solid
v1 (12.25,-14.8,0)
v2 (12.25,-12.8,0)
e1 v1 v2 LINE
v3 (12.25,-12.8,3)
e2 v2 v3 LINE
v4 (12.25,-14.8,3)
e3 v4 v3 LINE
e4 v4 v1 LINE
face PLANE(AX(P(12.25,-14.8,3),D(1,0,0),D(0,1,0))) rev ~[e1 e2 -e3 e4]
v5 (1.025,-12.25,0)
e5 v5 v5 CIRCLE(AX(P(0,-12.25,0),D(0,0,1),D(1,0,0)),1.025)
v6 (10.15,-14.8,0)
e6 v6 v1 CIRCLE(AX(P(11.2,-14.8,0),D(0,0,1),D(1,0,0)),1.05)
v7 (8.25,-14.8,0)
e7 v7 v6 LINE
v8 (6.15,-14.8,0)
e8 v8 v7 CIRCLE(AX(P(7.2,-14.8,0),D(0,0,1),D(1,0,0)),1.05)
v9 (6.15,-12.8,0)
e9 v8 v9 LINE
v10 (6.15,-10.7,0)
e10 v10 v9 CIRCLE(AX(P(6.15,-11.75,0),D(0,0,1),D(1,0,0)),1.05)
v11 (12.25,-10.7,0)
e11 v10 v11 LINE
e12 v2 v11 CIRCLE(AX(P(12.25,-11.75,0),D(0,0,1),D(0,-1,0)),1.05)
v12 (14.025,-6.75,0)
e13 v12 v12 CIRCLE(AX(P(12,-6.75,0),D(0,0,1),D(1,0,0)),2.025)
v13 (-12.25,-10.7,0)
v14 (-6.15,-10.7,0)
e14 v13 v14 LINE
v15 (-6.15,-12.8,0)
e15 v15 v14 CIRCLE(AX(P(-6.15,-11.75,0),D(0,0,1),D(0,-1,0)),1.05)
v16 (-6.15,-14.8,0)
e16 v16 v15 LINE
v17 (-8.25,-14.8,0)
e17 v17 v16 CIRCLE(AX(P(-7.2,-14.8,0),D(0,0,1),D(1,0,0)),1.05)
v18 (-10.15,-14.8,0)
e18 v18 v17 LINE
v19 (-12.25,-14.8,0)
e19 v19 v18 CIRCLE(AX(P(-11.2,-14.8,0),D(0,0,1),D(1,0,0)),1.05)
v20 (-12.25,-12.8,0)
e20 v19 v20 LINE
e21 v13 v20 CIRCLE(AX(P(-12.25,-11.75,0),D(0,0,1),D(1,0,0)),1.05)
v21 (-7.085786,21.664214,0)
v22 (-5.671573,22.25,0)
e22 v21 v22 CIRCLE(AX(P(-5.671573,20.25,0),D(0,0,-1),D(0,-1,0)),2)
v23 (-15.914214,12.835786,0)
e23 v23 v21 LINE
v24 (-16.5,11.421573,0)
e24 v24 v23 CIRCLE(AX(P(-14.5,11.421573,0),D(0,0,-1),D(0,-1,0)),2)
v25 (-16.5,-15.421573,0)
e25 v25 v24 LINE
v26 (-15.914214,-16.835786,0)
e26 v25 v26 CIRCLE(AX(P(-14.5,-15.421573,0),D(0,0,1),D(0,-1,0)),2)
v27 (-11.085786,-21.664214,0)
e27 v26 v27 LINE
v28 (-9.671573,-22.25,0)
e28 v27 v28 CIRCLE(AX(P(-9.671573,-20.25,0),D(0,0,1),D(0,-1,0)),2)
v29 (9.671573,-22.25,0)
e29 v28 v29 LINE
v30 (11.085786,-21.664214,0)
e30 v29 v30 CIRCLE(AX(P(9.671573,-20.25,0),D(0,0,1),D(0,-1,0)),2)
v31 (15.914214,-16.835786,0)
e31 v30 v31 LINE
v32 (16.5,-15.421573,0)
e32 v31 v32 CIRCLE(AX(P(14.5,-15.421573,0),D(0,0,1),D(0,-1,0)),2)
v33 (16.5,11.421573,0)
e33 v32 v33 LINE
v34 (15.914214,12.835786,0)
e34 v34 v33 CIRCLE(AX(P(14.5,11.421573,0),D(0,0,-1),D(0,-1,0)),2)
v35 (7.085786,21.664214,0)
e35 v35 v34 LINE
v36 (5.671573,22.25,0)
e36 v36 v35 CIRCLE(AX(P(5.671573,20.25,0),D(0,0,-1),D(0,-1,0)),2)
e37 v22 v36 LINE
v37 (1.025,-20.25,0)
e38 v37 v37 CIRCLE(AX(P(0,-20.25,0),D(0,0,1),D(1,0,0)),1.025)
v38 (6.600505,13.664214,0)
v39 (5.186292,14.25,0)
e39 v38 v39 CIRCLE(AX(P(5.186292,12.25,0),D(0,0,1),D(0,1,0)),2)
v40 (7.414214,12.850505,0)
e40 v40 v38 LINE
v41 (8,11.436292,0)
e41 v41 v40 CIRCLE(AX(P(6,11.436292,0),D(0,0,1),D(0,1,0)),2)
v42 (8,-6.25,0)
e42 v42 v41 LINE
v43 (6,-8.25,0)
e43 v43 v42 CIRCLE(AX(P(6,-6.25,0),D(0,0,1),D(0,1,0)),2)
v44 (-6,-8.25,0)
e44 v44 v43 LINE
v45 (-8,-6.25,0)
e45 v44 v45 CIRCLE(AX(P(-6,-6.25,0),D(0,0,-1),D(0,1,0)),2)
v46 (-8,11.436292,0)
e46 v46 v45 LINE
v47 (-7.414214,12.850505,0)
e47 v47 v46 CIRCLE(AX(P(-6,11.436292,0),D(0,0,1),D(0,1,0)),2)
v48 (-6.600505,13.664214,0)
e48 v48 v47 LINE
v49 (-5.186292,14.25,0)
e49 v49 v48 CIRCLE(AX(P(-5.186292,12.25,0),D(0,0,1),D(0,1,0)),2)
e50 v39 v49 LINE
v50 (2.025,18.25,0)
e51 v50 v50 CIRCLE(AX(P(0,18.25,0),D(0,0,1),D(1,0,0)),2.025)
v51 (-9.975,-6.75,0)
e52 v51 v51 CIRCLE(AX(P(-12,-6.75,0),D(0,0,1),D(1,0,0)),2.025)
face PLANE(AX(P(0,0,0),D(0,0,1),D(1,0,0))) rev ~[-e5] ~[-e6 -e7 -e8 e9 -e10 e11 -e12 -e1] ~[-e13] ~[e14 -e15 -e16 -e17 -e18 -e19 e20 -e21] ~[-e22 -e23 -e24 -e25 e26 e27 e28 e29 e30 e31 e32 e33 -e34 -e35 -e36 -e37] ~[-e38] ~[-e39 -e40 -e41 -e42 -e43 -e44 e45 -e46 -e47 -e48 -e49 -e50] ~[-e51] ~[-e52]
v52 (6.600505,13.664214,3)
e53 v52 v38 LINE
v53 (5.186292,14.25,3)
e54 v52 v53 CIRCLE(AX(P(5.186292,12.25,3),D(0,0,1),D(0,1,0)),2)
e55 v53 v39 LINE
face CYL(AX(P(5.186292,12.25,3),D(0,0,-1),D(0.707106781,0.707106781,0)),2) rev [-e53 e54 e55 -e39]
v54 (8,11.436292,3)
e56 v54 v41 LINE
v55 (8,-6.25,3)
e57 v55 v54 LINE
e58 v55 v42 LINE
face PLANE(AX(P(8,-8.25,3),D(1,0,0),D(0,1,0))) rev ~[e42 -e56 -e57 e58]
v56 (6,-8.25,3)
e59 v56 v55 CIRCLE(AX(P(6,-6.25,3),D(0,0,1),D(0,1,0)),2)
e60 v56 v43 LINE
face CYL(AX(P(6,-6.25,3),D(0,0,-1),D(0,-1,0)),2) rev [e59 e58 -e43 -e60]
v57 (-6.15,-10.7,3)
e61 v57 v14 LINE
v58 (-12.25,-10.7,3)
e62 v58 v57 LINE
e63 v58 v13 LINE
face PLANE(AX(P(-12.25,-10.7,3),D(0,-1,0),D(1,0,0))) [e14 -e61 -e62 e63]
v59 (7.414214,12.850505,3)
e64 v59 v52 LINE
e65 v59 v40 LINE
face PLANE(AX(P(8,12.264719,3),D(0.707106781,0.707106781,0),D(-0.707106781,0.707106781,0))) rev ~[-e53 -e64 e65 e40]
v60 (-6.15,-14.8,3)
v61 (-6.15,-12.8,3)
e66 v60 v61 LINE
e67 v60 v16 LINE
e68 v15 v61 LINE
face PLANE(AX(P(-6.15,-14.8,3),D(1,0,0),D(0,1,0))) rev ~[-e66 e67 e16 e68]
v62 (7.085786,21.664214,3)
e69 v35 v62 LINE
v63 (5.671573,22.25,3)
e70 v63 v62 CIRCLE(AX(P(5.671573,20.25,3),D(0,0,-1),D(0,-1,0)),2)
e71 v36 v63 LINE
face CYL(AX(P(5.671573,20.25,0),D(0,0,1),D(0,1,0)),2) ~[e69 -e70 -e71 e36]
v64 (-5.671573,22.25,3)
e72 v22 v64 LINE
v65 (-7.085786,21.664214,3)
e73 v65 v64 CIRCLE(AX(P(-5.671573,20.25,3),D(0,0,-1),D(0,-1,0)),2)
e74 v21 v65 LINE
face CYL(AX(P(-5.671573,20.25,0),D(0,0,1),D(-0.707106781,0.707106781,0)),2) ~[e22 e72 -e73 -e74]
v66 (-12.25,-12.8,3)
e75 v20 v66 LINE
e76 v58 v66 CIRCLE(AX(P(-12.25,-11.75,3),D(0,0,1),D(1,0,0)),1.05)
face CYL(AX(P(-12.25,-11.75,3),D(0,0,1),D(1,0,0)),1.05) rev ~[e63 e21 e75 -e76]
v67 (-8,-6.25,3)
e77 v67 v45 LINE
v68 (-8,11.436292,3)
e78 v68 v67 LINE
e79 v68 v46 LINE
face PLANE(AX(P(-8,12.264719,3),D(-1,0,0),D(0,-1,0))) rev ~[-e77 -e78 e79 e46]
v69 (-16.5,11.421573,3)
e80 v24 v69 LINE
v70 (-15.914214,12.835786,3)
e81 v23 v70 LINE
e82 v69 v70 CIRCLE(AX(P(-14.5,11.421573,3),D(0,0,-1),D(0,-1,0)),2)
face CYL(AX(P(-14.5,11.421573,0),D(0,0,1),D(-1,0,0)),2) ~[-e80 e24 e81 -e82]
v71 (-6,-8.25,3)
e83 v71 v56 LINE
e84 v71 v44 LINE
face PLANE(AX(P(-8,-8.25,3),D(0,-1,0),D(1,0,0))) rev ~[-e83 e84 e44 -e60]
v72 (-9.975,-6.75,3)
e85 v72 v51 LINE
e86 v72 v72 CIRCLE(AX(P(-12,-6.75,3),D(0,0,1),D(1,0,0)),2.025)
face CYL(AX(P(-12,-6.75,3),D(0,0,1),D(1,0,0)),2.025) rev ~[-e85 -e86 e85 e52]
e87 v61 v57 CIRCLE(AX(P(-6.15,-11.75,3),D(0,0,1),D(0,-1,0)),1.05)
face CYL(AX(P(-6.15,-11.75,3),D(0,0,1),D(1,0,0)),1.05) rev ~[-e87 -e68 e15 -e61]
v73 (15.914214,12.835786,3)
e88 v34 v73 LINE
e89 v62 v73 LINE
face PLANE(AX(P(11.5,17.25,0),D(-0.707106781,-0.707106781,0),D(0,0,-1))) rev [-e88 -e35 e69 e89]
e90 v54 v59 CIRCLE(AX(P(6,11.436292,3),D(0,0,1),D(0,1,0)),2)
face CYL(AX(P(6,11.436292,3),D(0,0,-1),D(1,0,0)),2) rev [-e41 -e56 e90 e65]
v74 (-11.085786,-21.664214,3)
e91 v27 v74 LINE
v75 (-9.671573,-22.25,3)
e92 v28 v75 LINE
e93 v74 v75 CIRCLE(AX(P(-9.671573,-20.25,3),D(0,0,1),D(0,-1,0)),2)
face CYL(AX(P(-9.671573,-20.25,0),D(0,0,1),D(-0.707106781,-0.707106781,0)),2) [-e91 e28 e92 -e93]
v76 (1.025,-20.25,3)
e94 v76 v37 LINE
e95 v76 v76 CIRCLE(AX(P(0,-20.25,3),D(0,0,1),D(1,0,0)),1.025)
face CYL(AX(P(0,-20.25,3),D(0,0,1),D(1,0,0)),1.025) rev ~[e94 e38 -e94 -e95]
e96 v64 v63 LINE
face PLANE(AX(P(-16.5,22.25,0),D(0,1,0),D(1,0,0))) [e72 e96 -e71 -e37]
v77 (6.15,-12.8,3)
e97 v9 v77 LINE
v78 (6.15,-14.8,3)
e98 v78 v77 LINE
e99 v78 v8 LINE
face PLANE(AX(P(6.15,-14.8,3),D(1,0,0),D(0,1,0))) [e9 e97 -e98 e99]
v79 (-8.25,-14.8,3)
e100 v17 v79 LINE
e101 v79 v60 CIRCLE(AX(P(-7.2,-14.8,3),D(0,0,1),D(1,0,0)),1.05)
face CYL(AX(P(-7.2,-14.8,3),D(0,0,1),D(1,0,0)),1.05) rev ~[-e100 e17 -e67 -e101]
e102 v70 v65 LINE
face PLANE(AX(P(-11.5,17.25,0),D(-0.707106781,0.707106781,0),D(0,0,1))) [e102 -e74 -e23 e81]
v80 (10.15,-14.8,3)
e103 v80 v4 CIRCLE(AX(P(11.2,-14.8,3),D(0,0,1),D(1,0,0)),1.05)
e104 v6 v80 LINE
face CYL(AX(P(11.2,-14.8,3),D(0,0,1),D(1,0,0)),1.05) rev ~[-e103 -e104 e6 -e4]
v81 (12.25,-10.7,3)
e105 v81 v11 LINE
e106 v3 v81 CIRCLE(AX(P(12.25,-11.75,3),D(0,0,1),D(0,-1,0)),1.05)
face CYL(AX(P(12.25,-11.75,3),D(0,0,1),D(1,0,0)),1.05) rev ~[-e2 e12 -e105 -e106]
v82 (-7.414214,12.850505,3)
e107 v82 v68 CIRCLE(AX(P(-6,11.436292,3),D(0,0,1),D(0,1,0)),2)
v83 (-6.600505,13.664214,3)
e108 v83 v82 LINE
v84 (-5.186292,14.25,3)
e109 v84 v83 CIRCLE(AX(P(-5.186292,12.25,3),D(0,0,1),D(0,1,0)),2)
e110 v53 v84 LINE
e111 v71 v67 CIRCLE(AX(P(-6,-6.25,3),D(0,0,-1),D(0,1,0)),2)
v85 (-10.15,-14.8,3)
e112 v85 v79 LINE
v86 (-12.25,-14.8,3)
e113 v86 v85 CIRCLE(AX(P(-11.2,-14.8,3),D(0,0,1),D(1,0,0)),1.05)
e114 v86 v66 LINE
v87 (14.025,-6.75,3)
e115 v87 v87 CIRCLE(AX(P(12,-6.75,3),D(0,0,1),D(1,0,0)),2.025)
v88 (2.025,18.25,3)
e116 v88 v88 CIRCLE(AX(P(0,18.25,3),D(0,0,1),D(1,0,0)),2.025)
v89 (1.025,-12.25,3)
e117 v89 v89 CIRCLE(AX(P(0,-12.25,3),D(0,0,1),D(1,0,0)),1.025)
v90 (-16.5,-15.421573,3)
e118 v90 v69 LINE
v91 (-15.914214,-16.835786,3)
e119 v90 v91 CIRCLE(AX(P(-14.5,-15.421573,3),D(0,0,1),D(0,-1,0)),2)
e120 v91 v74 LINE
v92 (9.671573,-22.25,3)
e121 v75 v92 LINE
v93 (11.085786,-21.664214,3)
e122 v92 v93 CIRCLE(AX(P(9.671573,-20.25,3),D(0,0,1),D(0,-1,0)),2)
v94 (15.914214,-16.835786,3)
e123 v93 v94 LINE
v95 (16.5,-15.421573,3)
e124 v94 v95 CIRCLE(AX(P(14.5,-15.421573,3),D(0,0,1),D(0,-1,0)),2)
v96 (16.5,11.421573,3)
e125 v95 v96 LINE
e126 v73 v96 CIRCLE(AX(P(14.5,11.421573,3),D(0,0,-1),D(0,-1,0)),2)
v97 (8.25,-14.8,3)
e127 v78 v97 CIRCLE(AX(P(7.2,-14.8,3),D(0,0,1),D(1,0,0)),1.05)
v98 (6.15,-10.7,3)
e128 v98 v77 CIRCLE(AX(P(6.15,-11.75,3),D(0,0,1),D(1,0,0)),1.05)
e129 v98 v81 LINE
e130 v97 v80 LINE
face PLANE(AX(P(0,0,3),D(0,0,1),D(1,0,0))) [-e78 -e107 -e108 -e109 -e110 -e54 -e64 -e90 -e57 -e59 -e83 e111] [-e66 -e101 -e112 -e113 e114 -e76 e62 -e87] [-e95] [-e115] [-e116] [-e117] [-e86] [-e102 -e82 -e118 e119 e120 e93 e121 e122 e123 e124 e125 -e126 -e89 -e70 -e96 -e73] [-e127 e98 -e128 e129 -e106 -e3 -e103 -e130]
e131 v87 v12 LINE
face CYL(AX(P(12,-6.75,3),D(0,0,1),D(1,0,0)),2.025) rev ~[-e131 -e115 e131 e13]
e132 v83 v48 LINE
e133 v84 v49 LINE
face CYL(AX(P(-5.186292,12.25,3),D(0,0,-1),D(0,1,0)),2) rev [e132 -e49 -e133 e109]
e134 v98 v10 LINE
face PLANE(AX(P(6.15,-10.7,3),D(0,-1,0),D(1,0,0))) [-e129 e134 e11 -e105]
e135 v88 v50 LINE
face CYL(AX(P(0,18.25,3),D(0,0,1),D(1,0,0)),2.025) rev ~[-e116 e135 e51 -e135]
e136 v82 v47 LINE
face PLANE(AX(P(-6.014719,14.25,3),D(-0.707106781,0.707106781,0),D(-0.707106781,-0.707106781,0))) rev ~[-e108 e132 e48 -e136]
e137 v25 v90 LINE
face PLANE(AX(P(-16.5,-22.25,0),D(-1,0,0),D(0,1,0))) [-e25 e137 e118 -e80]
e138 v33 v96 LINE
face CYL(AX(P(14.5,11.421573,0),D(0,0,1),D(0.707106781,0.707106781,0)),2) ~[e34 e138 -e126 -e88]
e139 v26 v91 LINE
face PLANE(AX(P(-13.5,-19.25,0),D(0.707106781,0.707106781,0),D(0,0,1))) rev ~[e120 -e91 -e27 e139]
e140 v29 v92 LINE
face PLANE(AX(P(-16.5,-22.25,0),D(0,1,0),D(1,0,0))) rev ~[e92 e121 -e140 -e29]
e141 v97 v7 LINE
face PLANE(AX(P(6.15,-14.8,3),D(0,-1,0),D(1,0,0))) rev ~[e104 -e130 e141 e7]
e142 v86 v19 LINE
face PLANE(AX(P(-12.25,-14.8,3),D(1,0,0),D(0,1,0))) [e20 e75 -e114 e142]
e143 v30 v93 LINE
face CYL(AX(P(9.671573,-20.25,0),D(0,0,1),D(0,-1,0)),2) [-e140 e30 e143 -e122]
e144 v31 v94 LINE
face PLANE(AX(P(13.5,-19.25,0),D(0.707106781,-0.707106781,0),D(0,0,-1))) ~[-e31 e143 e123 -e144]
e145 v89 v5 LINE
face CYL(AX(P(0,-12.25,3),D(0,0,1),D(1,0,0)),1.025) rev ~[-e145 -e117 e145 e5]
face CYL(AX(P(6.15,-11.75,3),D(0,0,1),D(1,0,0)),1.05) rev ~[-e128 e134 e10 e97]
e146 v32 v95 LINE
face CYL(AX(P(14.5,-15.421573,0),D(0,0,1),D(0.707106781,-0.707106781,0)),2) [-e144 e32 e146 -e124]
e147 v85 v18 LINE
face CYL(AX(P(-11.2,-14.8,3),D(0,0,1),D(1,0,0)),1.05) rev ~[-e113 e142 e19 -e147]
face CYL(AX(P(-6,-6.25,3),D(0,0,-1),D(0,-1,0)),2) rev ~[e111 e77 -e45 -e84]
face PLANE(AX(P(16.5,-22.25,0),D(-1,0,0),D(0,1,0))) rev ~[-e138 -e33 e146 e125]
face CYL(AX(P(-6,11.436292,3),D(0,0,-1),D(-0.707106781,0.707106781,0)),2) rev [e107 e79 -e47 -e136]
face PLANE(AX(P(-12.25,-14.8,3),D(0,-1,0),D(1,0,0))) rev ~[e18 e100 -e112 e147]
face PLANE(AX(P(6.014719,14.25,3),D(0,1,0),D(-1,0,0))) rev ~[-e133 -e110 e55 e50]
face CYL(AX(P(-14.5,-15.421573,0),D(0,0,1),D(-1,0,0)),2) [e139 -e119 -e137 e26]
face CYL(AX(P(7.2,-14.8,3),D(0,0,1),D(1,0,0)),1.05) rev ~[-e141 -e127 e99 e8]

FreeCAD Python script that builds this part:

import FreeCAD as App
import Part
import Sketcher
from FreeCAD import Vector
Q = App.Units.Quantity


def edges_at(feature, points):
    """Names of the edges that pass closest to the given points."""
    edges = feature.Shape.Edges
    near = lambda p: min(range(len(edges)), key=lambda i: edges[i].distToShape(Part.Vertex(*p))[0])
    return sorted({f"Edge{near(p) + 1}" for p in points})


def add_polygon(sketch, points):
    """Adds a closed chain of lines whose ends are joined by coincident constraints."""
    first, n = sketch.GeometryCount, len(points)
    for a, b in zip(points, points[1:] + points[:1]):
        sketch.addGeometry(Part.LineSegment(App.Vector(*a, 0), App.Vector(*b, 0)), False)
    for i in range(n):
        sketch.addConstraint(Sketcher.Constraint("Coincident", first + i, 2, first + (i + 1) % n, 1))

doc = App.newDocument("Part")
body = doc.addObject("PartDesign::Body", "Body")

# Sketch on XY plane
sketch1 = body.newObject("Sketcher::SketchObject", "Sketch")
sketch1.AttachmentSupport = (doc.getObject("XY_Plane"), [""])
sketch1.MapMode = "FlatFace"
add_polygon(sketch1, [(-16, 22), (-16, -22), (16, -22), (16, 22)])  # lines 0-3
sketch1.addConstraint([
    Sketcher.Constraint("Vertical", 0),
    Sketcher.Constraint("Horizontal", 1),
    Sketcher.Constraint("Vertical", 2),
    Sketcher.Constraint("Horizontal", 3),
    Sketcher.Constraint("Symmetric", 0, 2, 2, 2, -1, 1),
    Sketcher.Constraint("DistanceX", 1, 1, 1, 2, Q("33 mm")),
    Sketcher.Constraint("DistanceY", 0, 2, 0, 1, Q("44.5 mm")),
])
pad1 = body.newObject("PartDesign::Pad", "Pad")
pad1.Profile = sketch1
pad1.Length = 3

# Sketch on XY plane
sketch2 = body.newObject("Sketcher::SketchObject", "Sketch001")
sketch2.AttachmentSupport = (doc.getObject("XY_Plane"), [""])
sketch2.MapMode = "FlatFace"
sketch2.AttachmentOffset = App.Placement(Vector(0, 0, 3), App.Rotation())
sketch2.addGeometry([
    Part.Circle(Vector(12, -6.8, 0), Vector(0, 0, 1), 2),  # 0
    Part.Circle(Vector(-12, -6.8, 0), Vector(0, 0, 1), 2),  # 1
    Part.Circle(Vector(0, 18.2, 0), Vector(0, 0, 1), 2),  # 2
    Part.Circle(Vector(0, -12.2, 0), Vector(0, 0, 1), 1),  # 3
    Part.Circle(Vector(0, -20.2, 0), Vector(0, 0, 1), 1),  # 4
], False)
sketch2.addConstraint([
    Sketcher.Constraint("Equal", 0, 1),
    Sketcher.Constraint("Equal", 1, 2),
    Sketcher.Constraint("Equal", 3, 4),
    Sketcher.Constraint("Symmetric", 0, 3, 1, 3, -2),
    Sketcher.Constraint("PointOnObject", 2, 3, -2),
    Sketcher.Constraint("PointOnObject", 3, 3, -2),
    Sketcher.Constraint("PointOnObject", 4, 3, -2),
    Sketcher.Constraint("Diameter", 0, Q("4.05 mm")),
    Sketcher.Constraint("Diameter", 3, Q("2.05 mm")),
    Sketcher.Constraint("DistanceX", -1, 1, 0, 3, Q("12 mm")),
    Sketcher.Constraint("DistanceY", 0, 3, 2, 3, Q("25 mm")),
    Sketcher.Constraint("DistanceY", 4, 3, 3, 3, Q("8 mm")),
    Sketcher.Constraint("DistanceY", 3, 3, 0, 3, Q("5.5 mm")),
    Sketcher.Constraint("DistanceY", 0, 3, -1, 1, Q("6.75 mm")),
])
pocket1 = body.newObject("PartDesign::Pocket", "Pocket")
pocket1.Profile = sketch2
pocket1.Length = 13
doc.recompute()

chamfer = body.newObject("PartDesign::Chamfer", "Chamfer")
chamfer.Base = (pocket1, edges_at(pocket1, [(-16.5, 22.25, 1.5), (16.5, 22.25, 1.5)]))
chamfer.Size = 10

# Sketch on XY plane
sketch3 = body.newObject("Sketcher::SketchObject", "Sketch002")
sketch3.AttachmentSupport = (doc.getObject("XY_Plane"), [""])
sketch3.MapMode = "FlatFace"
sketch3.AttachmentOffset = App.Placement(Vector(0, 0, 3), App.Rotation())
add_polygon(sketch3, [(-8, -8.2), (8, -8.2), (8, 12.3), (6, 14.2), (-6, 14.2), (-8, 12.3)])  # lines 0-5
sketch3.addConstraint([
    Sketcher.Constraint("Horizontal", 0),
    Sketcher.Constraint("Vertical", 1),
    Sketcher.Constraint("Horizontal", 3),
    Sketcher.Constraint("Vertical", 5),
    Sketcher.Constraint("Symmetric", 1, 2, 4, 2, -2),
    Sketcher.Constraint("Perpendicular", 2, 4),
    Sketcher.Constraint("Equal", 2, 4),
    Sketcher.Constraint("DistanceX", 0, 1, 0, 2, Q("16 mm")),
    Sketcher.Constraint("DistanceY", 0, 2, 2, 2, Q("22.5 mm")),
    Sketcher.Constraint("DistanceY", 0, 2, -1, 1, Q("8.25 mm")),
    Sketcher.Constraint("DistanceY", 1, 1, 1, 2, Q("20.514719 mm")),
])
pocket2 = body.newObject("PartDesign::Pocket", "Pocket001")
pocket2.Profile = sketch3
pocket2.Length = 13
doc.recompute()

fillet = body.newObject("PartDesign::Fillet", "Fillet")
fillet.Base = (pocket2, edges_at(pocket2, [
    (-8, -8.25, 1.5),
    (-8, 12.265, 1.5),
    (-6.015, 14.25, 1.5),
    (6.015, 14.25, 1.5),
    (8, 12.265, 1.5),
    (8, -8.25, 1.5),
]))
fillet.Radius = 2
doc.recompute()

chamfer2 = body.newObject("PartDesign::Chamfer", "Chamfer001")
chamfer2.Base = (fillet, edges_at(fillet, [(16.5, -22.25, 1.5), (-16.5, -22.25, 1.5)]))
chamfer2.Size = 6
doc.recompute()

fillet2 = body.newObject("PartDesign::Fillet", "Fillet001")
fillet2.Base = (chamfer2, edges_at(chamfer2, [
    (16.5, -16.25, 1.5),
    (-10.5, -22.25, 1.5),
    (10.5, -22.25, 1.5),
    (-16.5, -16.25, 1.5),
    (-6.5, 22.25, 1.5),
    (6.5, 22.25, 1.5),
    (16.5, 12.25, 1.5),
    (-16.5, 12.25, 1.5),
]))
fillet2.Radius = 2

# Sketch on XY plane
sketch4 = body.newObject("Sketcher::SketchObject", "Sketch003")
sketch4.AttachmentSupport = (doc.getObject("XY_Plane"), [""])
sketch4.MapMode = "FlatFace"
sketch4.AttachmentOffset = App.Placement(Vector(0, 0, 3), App.Rotation())
add_polygon(sketch4, [(-12.2, -10.7), (-12.2, -14.8), (-6.2, -14.8), (-6.2, -10.7)])  # lines 0-3
add_polygon(sketch4, [(6.2, -10.7), (6.2, -14.8), (12.2, -14.8), (12.2, -10.7)])  # lines 4-7
sketch4.addConstraint([
    Sketcher.Constraint("Vertical", 0),
    Sketcher.Constraint("Horizontal", 1),
    Sketcher.Constraint("Vertical", 2),
    Sketcher.Constraint("Horizontal", 3),
    Sketcher.Constraint("Vertical", 4),
    Sketcher.Constraint("Horizontal", 5),
    Sketcher.Constraint("Vertical", 6),
    Sketcher.Constraint("Horizontal", 7),
    Sketcher.Constraint("Symmetric", 1, 2, 4, 2, -2),
    Sketcher.Constraint("Symmetric", 3, 2, 6, 2, -2),
    Sketcher.Constraint("DistanceX", 1, 1, 1, 2, Q("6.1 mm")),
    Sketcher.Constraint("DistanceY", 0, 2, 0, 1, Q("4.1 mm")),
    Sketcher.Constraint("DistanceY", 0, 2, -1, 1, Q("14.8 mm")),
    Sketcher.Constraint("DistanceX", 1, 2, 4, 2, Q("12.3 mm")),
])
pocket3 = body.newObject("PartDesign::Pocket", "Pocket002")
pocket3.Profile = sketch4
pocket3.Length = 3

# Sketch on XY plane
sketch5 = body.newObject("Sketcher::SketchObject", "Sketch004")
sketch5.AttachmentSupport = (doc.getObject("XY_Plane"), [""])
sketch5.MapMode = "FlatFace"
sketch5.AttachmentOffset = App.Placement(Vector(0, 0, 3), App.Rotation())
sketch5.addGeometry([
    Part.Circle(Vector(-11.2, -14.8, 0), Vector(0, 0, 1), 1.1),  # 0
    Part.Circle(Vector(-7.2, -14.8, 0), Vector(0, 0, 1), 1.1),  # 1
    Part.Circle(Vector(7.2, -14.8, 0), Vector(0, 0, 1), 1.1),  # 2
    Part.Circle(Vector(11.2, -14.8, 0), Vector(0, 0, 1), 1.1),  # 3
    Part.Circle(Vector(-12.2, -11.8, 0), Vector(0, 0, 1), 1.1),  # 4
    Part.Circle(Vector(-6.2, -11.8, 0), Vector(0, 0, 1), 1.1),  # 5
    Part.Circle(Vector(6.2, -11.8, 0), Vector(0, 0, 1), 1.1),  # 6
    Part.Circle(Vector(12.2, -11.8, 0), Vector(0, 0, 1), 1.1),  # 7
], False)
sketch5.addConstraint([
    Sketcher.Constraint("Equal", 0, 1),
    Sketcher.Constraint("Equal", 1, 2),
    Sketcher.Constraint("Equal", 2, 3),
    Sketcher.Constraint("Equal", 3, 4),
    Sketcher.Constraint("Equal", 4, 5),
    Sketcher.Constraint("Equal", 5, 6),
    Sketcher.Constraint("Equal", 6, 7),
    Sketcher.Constraint("Symmetric", 1, 3, 2, 3, -2),
    Sketcher.Constraint("Symmetric", 0, 3, 3, 3, -2),
    Sketcher.Constraint("Symmetric", 5, 3, 6, 3, -2),
    Sketcher.Constraint("Symmetric", 4, 3, 7, 3, -2),
    Sketcher.Constraint("Horizontal", 0, 3, 1, 3),
    Sketcher.Constraint("Horizontal", 4, 3, 5, 3),
    Sketcher.Constraint("Diameter", 0, Q("2.1 mm")),
    Sketcher.Constraint("DistanceX", 0, 3, 1, 3, Q("4 mm")),
    Sketcher.Constraint("DistanceX", 0, 3, -1, 1, Q("11.2 mm")),
    Sketcher.Constraint("DistanceY", 0, 3, -1, 1, Q("14.8 mm")),
    Sketcher.Constraint("DistanceX", 4, 3, 5, 3, Q("6.1 mm")),
    Sketcher.Constraint("DistanceX", 5, 3, 6, 3, Q("12.3 mm")),
    Sketcher.Constraint("DistanceY", 4, 3, -1, 1, Q("11.75 mm")),
])
pocket4 = body.newObject("PartDesign::Pocket", "Pocket003")
pocket4.Profile = sketch5
pocket4.Length = 3

doc.recompute()
